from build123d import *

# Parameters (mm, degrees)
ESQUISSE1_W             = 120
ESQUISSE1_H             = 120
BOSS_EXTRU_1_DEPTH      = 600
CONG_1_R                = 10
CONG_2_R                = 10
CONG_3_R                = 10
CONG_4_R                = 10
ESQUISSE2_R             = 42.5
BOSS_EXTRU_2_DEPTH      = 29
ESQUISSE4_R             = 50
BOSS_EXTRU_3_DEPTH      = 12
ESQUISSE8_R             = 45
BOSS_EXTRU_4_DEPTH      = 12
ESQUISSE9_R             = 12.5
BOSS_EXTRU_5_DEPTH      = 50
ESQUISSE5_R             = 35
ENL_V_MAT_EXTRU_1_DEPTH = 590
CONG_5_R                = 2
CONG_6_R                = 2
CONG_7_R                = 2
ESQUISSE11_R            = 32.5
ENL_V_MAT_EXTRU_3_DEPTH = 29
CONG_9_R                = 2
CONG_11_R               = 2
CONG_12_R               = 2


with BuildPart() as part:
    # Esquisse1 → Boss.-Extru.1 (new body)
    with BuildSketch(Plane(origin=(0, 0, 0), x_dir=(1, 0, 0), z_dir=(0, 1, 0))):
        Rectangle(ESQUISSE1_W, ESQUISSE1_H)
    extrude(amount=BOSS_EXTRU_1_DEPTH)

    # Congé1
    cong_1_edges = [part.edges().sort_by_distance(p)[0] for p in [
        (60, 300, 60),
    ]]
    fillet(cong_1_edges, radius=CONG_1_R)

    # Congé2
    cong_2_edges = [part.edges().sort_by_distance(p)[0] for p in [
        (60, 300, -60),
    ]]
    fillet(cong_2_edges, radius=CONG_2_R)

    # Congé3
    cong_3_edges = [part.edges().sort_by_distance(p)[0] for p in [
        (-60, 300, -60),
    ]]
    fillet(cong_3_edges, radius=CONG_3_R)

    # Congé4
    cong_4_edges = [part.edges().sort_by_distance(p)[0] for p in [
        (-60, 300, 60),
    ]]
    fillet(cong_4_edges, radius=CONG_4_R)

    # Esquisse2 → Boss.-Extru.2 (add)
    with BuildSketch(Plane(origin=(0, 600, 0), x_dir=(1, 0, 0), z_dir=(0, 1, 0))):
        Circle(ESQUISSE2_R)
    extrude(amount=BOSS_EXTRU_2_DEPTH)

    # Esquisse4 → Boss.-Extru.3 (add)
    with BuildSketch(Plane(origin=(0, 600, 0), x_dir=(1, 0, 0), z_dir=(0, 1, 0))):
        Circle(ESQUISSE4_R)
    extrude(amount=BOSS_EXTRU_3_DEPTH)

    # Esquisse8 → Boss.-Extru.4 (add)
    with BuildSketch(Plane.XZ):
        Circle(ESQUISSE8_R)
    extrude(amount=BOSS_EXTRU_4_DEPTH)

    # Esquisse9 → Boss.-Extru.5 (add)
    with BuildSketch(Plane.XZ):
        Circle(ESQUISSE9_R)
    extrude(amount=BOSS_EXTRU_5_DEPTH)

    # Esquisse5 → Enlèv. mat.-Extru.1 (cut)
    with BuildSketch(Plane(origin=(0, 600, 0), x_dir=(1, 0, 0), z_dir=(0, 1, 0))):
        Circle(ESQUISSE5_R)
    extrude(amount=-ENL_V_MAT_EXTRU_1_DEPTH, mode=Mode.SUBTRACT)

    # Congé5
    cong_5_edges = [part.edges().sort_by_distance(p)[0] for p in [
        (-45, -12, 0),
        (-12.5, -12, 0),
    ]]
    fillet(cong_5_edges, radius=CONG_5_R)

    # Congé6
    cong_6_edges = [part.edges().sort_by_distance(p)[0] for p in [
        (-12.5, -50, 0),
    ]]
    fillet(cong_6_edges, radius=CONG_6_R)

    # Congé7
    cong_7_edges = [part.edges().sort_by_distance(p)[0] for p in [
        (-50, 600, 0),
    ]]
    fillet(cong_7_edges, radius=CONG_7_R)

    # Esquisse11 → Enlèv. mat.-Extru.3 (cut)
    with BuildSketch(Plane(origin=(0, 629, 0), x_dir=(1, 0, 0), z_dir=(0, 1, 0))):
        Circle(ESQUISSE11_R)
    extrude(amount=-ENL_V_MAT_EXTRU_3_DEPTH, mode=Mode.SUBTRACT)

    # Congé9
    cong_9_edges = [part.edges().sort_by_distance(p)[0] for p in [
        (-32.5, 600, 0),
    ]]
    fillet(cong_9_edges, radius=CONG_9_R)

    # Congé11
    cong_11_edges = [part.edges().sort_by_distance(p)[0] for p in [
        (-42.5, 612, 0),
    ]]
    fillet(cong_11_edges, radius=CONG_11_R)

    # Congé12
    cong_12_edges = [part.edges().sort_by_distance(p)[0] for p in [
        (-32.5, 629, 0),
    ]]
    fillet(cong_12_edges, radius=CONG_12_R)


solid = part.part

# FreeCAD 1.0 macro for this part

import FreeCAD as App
import Part
import Sketcher

V = App.Vector


def edges_at(feature, points):
    """Names of the edges that pass closest to the given points."""
    edges = feature.Shape.Edges
    near = lambda p: min(range(len(edges)), key=lambda i: edges[i].distToShape(Part.Vertex(*p))[0])
    return sorted({f"Edge{near(p) + 1}" for p in points})

doc = App.newDocument("Part")
body = doc.addObject("PartDesign::Body", "Body")

# Sketch on XZ plane
sketch1 = doc.addObject("Sketcher::SketchObject", "Sketch")
body.addObject(sketch1)
sketch1.AttachmentSupport = (doc.XZ_Plane, [""])
sketch1.MapMode = "FlatFace"
sketch1.addGeometry([
    Part.LineSegment(V(-60, -60, 0), V(-60, 60, 0)),
    Part.LineSegment(V(-60, 60, 0), V(60, 60, 0)),
    Part.LineSegment(V(60, 60, 0), V(60, -60, 0)),
    Part.LineSegment(V(60, -60, 0), V(-60, -60, 0)),
], False)
sketch1.addConstraint([
    Sketcher.Constraint("Coincident", 0, 2, 1, 1),
    Sketcher.Constraint("Coincident", 1, 2, 2, 1),
    Sketcher.Constraint("Coincident", 2, 2, 3, 1),
    Sketcher.Constraint("Coincident", 3, 2, 0, 1),
    Sketcher.Constraint("Vertical", 0),
    Sketcher.Constraint("Horizontal", 1),
    Sketcher.Constraint("Vertical", 2),
    Sketcher.Constraint("Horizontal", 3),
    Sketcher.Constraint("Symmetric", 0, 2, 2, 2, -1, 1),
    Sketcher.Constraint("Equal", 3, 0),
    Sketcher.Constraint("DistanceX", 1, 1, 1, 2, 120.0),
])
pad1 = doc.addObject("PartDesign::Pad", "Pad")
body.addObject(pad1)
pad1.Profile = sketch1
pad1.Length = 600
pad1.Reversed = True
doc.recompute()

fillet = doc.addObject("PartDesign::Fillet", "Fillet")
body.addObject(fillet)
fillet.Base = (pad1, edges_at(pad1, [(60, 300, 60)]))
fillet.Radius = 10
doc.recompute()

fillet2 = doc.addObject("PartDesign::Fillet", "Fillet001")
body.addObject(fillet2)
fillet2.Base = (fillet, edges_at(fillet, [(60, 300, -60)]))
fillet2.Radius = 10
doc.recompute()

fillet3 = doc.addObject("PartDesign::Fillet", "Fillet002")
body.addObject(fillet3)
fillet3.Base = (fillet2, edges_at(fillet2, [(-60, 300, -60)]))
fillet3.Radius = 10
doc.recompute()

fillet4 = doc.addObject("PartDesign::Fillet", "Fillet003")
body.addObject(fillet4)
fillet4.Base = (fillet3, edges_at(fillet3, [(-60, 300, 60)]))
fillet4.Radius = 10

# Sketch on XZ plane
sketch2 = doc.addObject("Sketcher::SketchObject", "Sketch001")
body.addObject(sketch2)
sketch2.AttachmentSupport = (doc.XZ_Plane, [""])
sketch2.MapMode = "FlatFace"
sketch2.AttachmentOffset = App.Placement(V(0, 0, -600), App.Rotation())
sketch2.addGeometry(Part.Circle(V(0, 0, 0), V(0, 0, 1), 42), False)
sketch2.addConstraint([
    Sketcher.Constraint("Coincident", 0, 3, -1, 1),
    Sketcher.Constraint("Diameter", 0, 85.0),
])
pad2 = doc.addObject("PartDesign::Pad", "Pad001")
body.addObject(pad2)
pad2.Profile = sketch2
pad2.Length = 29
pad2.Reversed = True

# Sketch on XZ plane
sketch3 = doc.addObject("Sketcher::SketchObject", "Sketch002")
body.addObject(sketch3)
sketch3.AttachmentSupport = (doc.XZ_Plane, [""])
sketch3.MapMode = "FlatFace"
sketch3.AttachmentOffset = App.Placement(V(0, 0, -600), App.Rotation())
sketch3.addGeometry(Part.Circle(V(0, 0, 0), V(0, 0, 1), 50), False)
sketch3.addConstraint([
    Sketcher.Constraint("Coincident", 0, 3, -1, 1),
    Sketcher.Constraint("Diameter", 0, 100.0),
])
pad3 = doc.addObject("PartDesign::Pad", "Pad002")
body.addObject(pad3)
pad3.Profile = sketch3
pad3.Length = 12
pad3.Reversed = True

# Sketch on XZ plane
sketch4 = doc.addObject("Sketcher::SketchObject", "Sketch003")
body.addObject(sketch4)
sketch4.AttachmentSupport = (doc.XZ_Plane, [""])
sketch4.MapMode = "FlatFace"
sketch4.addGeometry(Part.Circle(V(0, 0, 0), V(0, 0, 1), 45), False)
sketch4.addConstraint([
    Sketcher.Constraint("Coincident", 0, 3, -1, 1),
    Sketcher.Constraint("Diameter", 0, 90.0),
])
pad4 = doc.addObject("PartDesign::Pad", "Pad003")
body.addObject(pad4)
pad4.Profile = sketch4
pad4.Length = 12

# Sketch on XZ plane
sketch5 = doc.addObject("Sketcher::SketchObject", "Sketch004")
body.addObject(sketch5)
sketch5.AttachmentSupport = (doc.XZ_Plane, [""])
sketch5.MapMode = "FlatFace"
sketch5.addGeometry(Part.Circle(V(0, 0, 0), V(0, 0, 1), 12), False)
sketch5.addConstraint([
    Sketcher.Constraint("Coincident", 0, 3, -1, 1),
    Sketcher.Constraint("Diameter", 0, 25.0),
])
pad5 = doc.addObject("PartDesign::Pad", "Pad004")
body.addObject(pad5)
pad5.Profile = sketch5
pad5.Length = 50

# Sketch on XZ plane
sketch6 = doc.addObject("Sketcher::SketchObject", "Sketch005")
body.addObject(sketch6)
sketch6.AttachmentSupport = (doc.XZ_Plane, [""])
sketch6.MapMode = "FlatFace"
sketch6.AttachmentOffset = App.Placement(V(0, 0, -600), App.Rotation())
sketch6.addGeometry(Part.Circle(V(0, 0, 0), V(0, 0, 1), 35), False)
sketch6.addConstraint([
    Sketcher.Constraint("Coincident", 0, 3, -1, 1),
    Sketcher.Constraint("Diameter", 0, 70.0),
])
pocket1 = doc.addObject("PartDesign::Pocket", "Pocket")
body.addObject(pocket1)
pocket1.Profile = sketch6
pocket1.Length = 590
pocket1.Reversed = True
doc.recompute()

fillet5 = doc.addObject("PartDesign::Fillet", "Fillet004")
body.addObject(fillet5)
fillet5.Base = (pocket1, edges_at(pocket1, [(-45, -12, 0), (-12.5, -12, 0)]))
fillet5.Radius = 2
doc.recompute()

fillet6 = doc.addObject("PartDesign::Fillet", "Fillet005")
body.addObject(fillet6)
fillet6.Base = (fillet5, edges_at(fillet5, [(-12.5, -50, 0)]))
fillet6.Radius = 2
doc.recompute()

fillet7 = doc.addObject("PartDesign::Fillet", "Fillet006")
body.addObject(fillet7)
fillet7.Base = (fillet6, edges_at(fillet6, [(-50, 600, 0)]))
fillet7.Radius = 2

# Sketch on XZ plane
sketch7 = doc.addObject("Sketcher::SketchObject", "Sketch006")
body.addObject(sketch7)
sketch7.AttachmentSupport = (doc.XZ_Plane, [""])
sketch7.MapMode = "FlatFace"
sketch7.AttachmentOffset = App.Placement(V(0, 0, -629), App.Rotation())
sketch7.addGeometry(Part.Circle(V(0, 0, 0), V(0, 0, 1), 32), False)
sketch7.addConstraint([
    Sketcher.Constraint("Coincident", 0, 3, -1, 1),
    Sketcher.Constraint("Diameter", 0, 65.0),
])
pocket2 = doc.addObject("PartDesign::Pocket", "Pocket001")
body.addObject(pocket2)
pocket2.Profile = sketch7
pocket2.Length = 29
pocket2.Reversed = True
doc.recompute()

fillet8 = doc.addObject("PartDesign::Fillet", "Fillet007")
body.addObject(fillet8)
fillet8.Base = (pocket2, edges_at(pocket2, [(-32.5, 600, 0)]))
fillet8.Radius = 2
doc.recompute()

fillet9 = doc.addObject("PartDesign::Fillet", "Fillet008")
body.addObject(fillet9)
fillet9.Base = (fillet8, edges_at(fillet8, [(-42.5, 612, 0)]))
fillet9.Radius = 2
doc.recompute()

fillet10 = doc.addObject("PartDesign::Fillet", "Fillet009")
body.addObject(fillet10)
fillet10.Base = (fillet9, edges_at(fillet9, [(-32.5, 629, 0)]))
fillet10.Radius = 2

doc.recompute()
